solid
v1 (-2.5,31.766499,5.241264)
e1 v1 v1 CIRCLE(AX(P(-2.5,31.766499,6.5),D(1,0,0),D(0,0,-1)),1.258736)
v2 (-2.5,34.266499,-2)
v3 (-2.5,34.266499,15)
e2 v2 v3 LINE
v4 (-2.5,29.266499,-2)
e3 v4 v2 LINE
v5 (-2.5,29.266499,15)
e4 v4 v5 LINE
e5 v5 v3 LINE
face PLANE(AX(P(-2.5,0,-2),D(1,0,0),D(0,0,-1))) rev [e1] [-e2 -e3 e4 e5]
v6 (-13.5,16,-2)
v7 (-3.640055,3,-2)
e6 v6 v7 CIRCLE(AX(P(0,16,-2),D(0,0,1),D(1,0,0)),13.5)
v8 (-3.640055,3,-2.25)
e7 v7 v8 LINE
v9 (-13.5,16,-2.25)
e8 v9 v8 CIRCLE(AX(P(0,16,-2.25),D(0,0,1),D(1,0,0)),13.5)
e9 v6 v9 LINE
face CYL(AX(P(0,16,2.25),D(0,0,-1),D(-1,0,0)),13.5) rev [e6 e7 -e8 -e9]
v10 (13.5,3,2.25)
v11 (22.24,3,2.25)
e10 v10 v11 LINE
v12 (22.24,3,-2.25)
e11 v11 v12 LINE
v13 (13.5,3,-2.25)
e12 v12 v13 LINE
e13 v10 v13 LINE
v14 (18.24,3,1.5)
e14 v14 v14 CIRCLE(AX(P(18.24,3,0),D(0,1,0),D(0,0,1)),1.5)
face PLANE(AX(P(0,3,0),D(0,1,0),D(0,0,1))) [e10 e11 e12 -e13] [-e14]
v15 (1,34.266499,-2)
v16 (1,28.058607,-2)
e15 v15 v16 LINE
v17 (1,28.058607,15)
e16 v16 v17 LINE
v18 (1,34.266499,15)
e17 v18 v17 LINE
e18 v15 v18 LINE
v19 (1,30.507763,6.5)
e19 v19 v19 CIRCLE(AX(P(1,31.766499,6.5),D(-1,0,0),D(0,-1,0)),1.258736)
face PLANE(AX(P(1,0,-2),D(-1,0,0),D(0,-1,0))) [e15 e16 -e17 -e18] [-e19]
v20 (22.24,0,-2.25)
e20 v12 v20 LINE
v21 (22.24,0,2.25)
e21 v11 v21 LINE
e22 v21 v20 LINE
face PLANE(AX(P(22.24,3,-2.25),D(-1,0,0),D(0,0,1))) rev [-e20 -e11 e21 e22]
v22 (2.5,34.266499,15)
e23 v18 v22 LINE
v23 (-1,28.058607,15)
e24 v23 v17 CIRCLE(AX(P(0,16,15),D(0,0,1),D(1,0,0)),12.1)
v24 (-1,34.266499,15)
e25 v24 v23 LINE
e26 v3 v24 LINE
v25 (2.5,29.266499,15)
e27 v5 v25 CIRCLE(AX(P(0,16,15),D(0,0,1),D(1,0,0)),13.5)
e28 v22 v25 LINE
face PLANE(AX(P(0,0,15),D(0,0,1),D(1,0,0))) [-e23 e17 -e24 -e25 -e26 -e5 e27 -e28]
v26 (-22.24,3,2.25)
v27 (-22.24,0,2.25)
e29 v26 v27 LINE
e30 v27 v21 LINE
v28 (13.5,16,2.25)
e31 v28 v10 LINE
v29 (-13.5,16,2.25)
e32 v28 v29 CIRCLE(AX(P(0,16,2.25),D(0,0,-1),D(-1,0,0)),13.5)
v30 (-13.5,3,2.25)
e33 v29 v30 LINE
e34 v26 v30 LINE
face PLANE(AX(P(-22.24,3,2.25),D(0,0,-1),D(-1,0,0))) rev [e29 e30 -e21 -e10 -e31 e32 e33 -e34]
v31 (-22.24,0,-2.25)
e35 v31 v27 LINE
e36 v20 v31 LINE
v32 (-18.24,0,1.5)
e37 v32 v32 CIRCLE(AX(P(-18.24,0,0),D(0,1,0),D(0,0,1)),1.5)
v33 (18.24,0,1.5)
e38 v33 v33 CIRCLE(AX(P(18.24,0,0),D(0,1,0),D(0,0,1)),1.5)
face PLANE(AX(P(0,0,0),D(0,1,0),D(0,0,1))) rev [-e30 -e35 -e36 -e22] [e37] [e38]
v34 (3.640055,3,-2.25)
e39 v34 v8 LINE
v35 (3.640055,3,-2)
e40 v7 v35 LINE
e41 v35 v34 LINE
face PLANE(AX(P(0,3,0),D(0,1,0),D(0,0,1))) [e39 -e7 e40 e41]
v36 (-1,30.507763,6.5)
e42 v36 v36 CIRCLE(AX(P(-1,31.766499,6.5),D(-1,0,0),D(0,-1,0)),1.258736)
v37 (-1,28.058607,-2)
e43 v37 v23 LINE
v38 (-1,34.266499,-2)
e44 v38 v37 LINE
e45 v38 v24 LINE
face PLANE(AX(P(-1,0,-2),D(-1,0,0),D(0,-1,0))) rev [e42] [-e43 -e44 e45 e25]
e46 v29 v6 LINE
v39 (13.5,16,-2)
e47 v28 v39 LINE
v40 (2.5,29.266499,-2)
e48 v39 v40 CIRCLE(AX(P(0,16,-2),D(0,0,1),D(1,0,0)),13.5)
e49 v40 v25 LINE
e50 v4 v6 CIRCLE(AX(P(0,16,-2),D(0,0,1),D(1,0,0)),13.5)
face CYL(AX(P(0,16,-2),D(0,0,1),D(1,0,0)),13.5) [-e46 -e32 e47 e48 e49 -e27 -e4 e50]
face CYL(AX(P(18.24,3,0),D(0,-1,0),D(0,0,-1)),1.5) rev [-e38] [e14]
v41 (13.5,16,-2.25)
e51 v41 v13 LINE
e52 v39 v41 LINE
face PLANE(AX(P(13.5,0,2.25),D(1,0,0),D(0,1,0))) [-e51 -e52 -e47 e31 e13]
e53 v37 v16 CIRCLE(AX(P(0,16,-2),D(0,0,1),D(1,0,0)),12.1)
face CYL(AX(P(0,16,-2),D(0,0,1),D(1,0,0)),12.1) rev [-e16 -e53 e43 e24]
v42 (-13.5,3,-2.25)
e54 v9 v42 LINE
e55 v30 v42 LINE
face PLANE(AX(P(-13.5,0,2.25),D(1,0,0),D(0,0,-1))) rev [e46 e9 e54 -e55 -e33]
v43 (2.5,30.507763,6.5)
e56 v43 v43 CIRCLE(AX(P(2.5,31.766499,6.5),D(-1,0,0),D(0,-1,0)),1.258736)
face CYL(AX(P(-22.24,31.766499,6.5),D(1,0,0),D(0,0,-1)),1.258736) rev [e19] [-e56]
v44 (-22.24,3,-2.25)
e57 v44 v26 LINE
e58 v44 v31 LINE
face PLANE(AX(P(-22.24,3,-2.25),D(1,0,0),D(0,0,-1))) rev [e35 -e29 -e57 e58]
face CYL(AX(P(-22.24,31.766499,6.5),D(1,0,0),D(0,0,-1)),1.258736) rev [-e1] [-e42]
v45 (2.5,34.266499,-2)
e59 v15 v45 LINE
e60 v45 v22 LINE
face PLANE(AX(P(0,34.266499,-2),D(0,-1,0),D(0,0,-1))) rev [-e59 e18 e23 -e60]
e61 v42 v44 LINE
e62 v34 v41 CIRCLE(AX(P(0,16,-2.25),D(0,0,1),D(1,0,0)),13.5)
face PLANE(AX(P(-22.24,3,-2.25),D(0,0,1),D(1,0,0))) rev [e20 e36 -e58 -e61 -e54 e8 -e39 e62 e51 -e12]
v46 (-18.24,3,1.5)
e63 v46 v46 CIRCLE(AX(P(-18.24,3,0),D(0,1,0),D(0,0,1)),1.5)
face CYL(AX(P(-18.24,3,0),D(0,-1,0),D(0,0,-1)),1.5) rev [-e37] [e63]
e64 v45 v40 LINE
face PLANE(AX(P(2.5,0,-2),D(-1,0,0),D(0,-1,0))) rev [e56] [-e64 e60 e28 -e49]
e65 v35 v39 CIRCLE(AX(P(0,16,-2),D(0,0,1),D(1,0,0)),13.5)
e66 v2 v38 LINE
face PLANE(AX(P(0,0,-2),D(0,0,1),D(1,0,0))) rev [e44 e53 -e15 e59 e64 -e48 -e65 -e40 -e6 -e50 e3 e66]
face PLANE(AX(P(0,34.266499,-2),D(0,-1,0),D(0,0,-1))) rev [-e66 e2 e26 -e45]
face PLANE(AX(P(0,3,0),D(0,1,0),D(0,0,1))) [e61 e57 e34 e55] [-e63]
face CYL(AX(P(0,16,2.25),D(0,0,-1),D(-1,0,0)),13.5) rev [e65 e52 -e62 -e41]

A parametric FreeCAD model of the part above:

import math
import FreeCAD as App
import Part
import Sketcher

V = App.Vector
Q = App.Units.Quantity

doc = App.newDocument("Part")
body = doc.addObject("PartDesign::Body", "Body")

sketch1 = body.newObject("Sketcher::SketchObject", "Sketch")
sketch1.AttachmentSupport = (doc.getObject("XZ_Plane"), [""])
sketch1.MapMode = "FlatFace"
sketch1.addGeometry([
    Part.LineSegment(V(-22.2, -2.2, 0), V(-22.2, 2.2, 0)),
    Part.LineSegment(V(-22.2, 2.2, 0), V(22.2, 2.2, 0)),
    Part.LineSegment(V(22.2, 2.2, 0), V(22.2, -2.2, 0)),
    Part.LineSegment(V(22.2, -2.2, 0), V(-22.2, -2.2, 0)),
    Part.Circle(V(-18.2, 0, 0), V(0, 0, 1), 1.5),
    Part.Circle(V(18.2, 0, 0), V(0, 0, 1), 1.5),
], False)
sketch1.addConstraint([
    Sketcher.Constraint("Coincident", 0, 2, 1, 1),
    Sketcher.Constraint("Coincident", 1, 2, 2, 1),
    Sketcher.Constraint("Coincident", 2, 2, 3, 1),
    Sketcher.Constraint("Coincident", 3, 2, 0, 1),
    Sketcher.Constraint("Vertical", 0),
    Sketcher.Constraint("Horizontal", 1),
    Sketcher.Constraint("Vertical", 2),
    Sketcher.Constraint("Horizontal", 3),
    Sketcher.Constraint("Equal", 4, 5),
    Sketcher.Constraint("Symmetric", 4, 3, 5, 3, -1, 1),
    Sketcher.Constraint("Symmetric", 0, 2, 2, 2, -1, 1),
    Sketcher.Constraint("PointOnObject", 4, 3, -1),
    Sketcher.Constraint("Diameter", 4, Q("3 mm")),
    Sketcher.Constraint("DistanceY", 0, 1, 0, 2, Q("4.5 mm")),
    Sketcher.Constraint("DistanceX", 0, 2, 4, 3, Q("4 mm")),
    Sketcher.Constraint("DistanceX", 1, 1, 1, 2, Q("44.48 mm")),
])
pad1 = body.newObject("PartDesign::Pad", "Pad")
pad1.Profile = sketch1
pad1.Length = 3
pad1.Reversed = True

sketch2 = body.newObject("Sketcher::SketchObject", "Sketch001")
sketch2.AttachmentSupport = (doc.getObject("XY_Plane"), [""])
sketch2.MapMode = "FlatFace"
sketch2.addGeometry([
    Part.LineSegment(V(-2.5, 34.3, 0), V(-2.5, 29.3, 0)),
    Part.ArcOfCircle(Part.Circle(V(0, 16, 0), V(0, 0, 1), 13.5), math.radians(101), math.radians(180)),
    Part.ArcOfCircle(Part.Circle(V(0, 16, 0), V(0, 0, 1), 13.5), math.radians(-180), math.radians(-106)),
    Part.ArcOfCircle(Part.Circle(V(0, 16, 0), V(0, 0, 1), 13.5), math.radians(-106), math.radians(-74)),
    Part.ArcOfCircle(Part.Circle(V(0, 16, 0), V(0, 0, 1), 13.5), math.radians(-74), math.radians(0)),
    Part.ArcOfCircle(Part.Circle(V(0, 16, 0), V(0, 0, 1), 13.5), math.radians(0), math.radians(79)),
    Part.LineSegment(V(2.5, 29.3, 0), V(2.5, 34.3, 0)),
    Part.LineSegment(V(2.5, 34.3, 0), V(1, 34.3, 0)),
    Part.LineSegment(V(1, 34.3, 0), V(1, 28.1, 0)),
    Part.ArcOfCircle(Part.Circle(V(0, 16, 0), V(0, 0, 1), 12.1), math.radians(0), math.radians(85)),
    Part.ArcOfCircle(Part.Circle(V(0, 16, 0), V(0, 0, 1), 12.1), math.radians(95), math.radians(360)),
    Part.LineSegment(V(-1, 28.1, 0), V(-1, 34.3, 0)),
    Part.LineSegment(V(-1, 34.3, 0), V(-2.5, 34.3, 0)),
], False)
sketch2.addConstraint([
    Sketcher.Constraint("Coincident", 0, 2, 1, 1),
    Sketcher.Constraint("Tangent", 1, 2, 2, 1),
    Sketcher.Constraint("Tangent", 2, 2, 3, 1),
    Sketcher.Constraint("Tangent", 3, 2, 4, 1),
    Sketcher.Constraint("Tangent", 4, 2, 5, 1),
    Sketcher.Constraint("Coincident", 5, 2, 6, 1),
    Sketcher.Constraint("Coincident", 6, 2, 7, 1),
    Sketcher.Constraint("Coincident", 7, 2, 8, 1),
    Sketcher.Constraint("Coincident", 8, 2, 9, 2),
    Sketcher.Constraint("Tangent", 9, 1, 10, 2),
    Sketcher.Constraint("Coincident", 10, 1, 11, 1),
    Sketcher.Constraint("Coincident", 11, 2, 12, 1),
    Sketcher.Constraint("Coincident", 12, 2, 0, 1),
    Sketcher.Constraint("Vertical", 0),
    Sketcher.Constraint("Vertical", 6),
    Sketcher.Constraint("Horizontal", 7),
    Sketcher.Constraint("Vertical", 8),
    Sketcher.Constraint("Vertical", 11),
    Sketcher.Constraint("Horizontal", 12),
    Sketcher.Constraint("Coincident", 3, 3, 1, 3),
    Sketcher.Constraint("Coincident", 5, 3, 1, 3),
    Sketcher.Constraint("Coincident", 9, 3, 1, 3),
    Sketcher.Constraint("Equal", 9, 10),
    Sketcher.Constraint("Symmetric", 2, 2, 3, 2, -2),
    Sketcher.Constraint("Symmetric", 7, 2, 11, 2, -2),
    Sketcher.Constraint("Horizontal", 10, 3, 1, 2),
    Sketcher.Constraint("Horizontal", 1, 2, 4, 2),
    Sketcher.Constraint("Horizontal", 0, 2, 5, 2),
    Sketcher.Constraint("Horizontal", 4, 2, 9, 1),
    Sketcher.Constraint("Radius", 1, Q("13.5 mm")),
    Sketcher.Constraint("Radius", 9, Q("12.1 mm")),
    Sketcher.Constraint("DistanceY", 0, 2, 0, 1, Q("5 mm")),
    Sketcher.Constraint("DistanceX", 7, 2, 7, 1, Q("1.5 mm")),
    Sketcher.Constraint("DistanceY", -1, 1, 1, 3, Q("16 mm")),
    Sketcher.Constraint("DistanceY", -1, 1, 2, 2, Q("3 mm")),
    Sketcher.Constraint("DistanceX", -1, 1, 7, 2, Q("1 mm")),
])
pad2 = body.newObject("PartDesign::Pad", "Pad001")
pad2.Profile = sketch2
pad2.Type = "TwoLengths"
pad2.Length = 15
pad2.Length2 = 2

sketch3 = body.newObject("Sketcher::SketchObject", "Sketch002")
sketch3.AttachmentSupport = (doc.getObject("XY_Plane"), [""])
sketch3.MapMode = "FlatFace"
sketch3.addGeometry([
    Part.ArcOfCircle(Part.Circle(V(0, 16, 0), V(0, 0, 1), 14), math.radians(-74), math.radians(0)),
    Part.LineSegment(V(4, 3, 0), V(14, 3, 0)),
    Part.LineSegment(V(14, 3, 0), V(14, 16, 0)),
    Part.ArcOfCircle(Part.Circle(V(0, 16, 0), V(0, 0, 1), 14), math.radians(-180), math.radians(-106)),
    Part.LineSegment(V(-14, 16, 0), V(-14, 3, 0)),
    Part.LineSegment(V(-14, 3, 0), V(-4, 3, 0)),
], False)
sketch3.addConstraint([
    Sketcher.Constraint("Coincident", 0, 1, 1, 1),
    Sketcher.Constraint("Coincident", 1, 2, 2, 1),
    Sketcher.Constraint("Tangent", 2, 2, 0, 2),
    Sketcher.Constraint("Tangent", 3, 1, 4, 1),
    Sketcher.Constraint("Coincident", 4, 2, 5, 1),
    Sketcher.Constraint("Coincident", 5, 2, 3, 2),
    Sketcher.Constraint("Horizontal", 1),
    Sketcher.Constraint("Vertical", 2),
    Sketcher.Constraint("Vertical", 4),
    Sketcher.Constraint("Horizontal", 5),
    Sketcher.Constraint("Coincident", 3, 3, 0, 3),
    Sketcher.Constraint("Equal", 0, 3),
    Sketcher.Constraint("Symmetric", 1, 2, 4, 2, -2),
    Sketcher.Constraint("Radius", 0, Q("13.5 mm")),
    Sketcher.Constraint("DistanceY", 2, 1, 2, 2, Q("13 mm")),
    Sketcher.Constraint("DistanceY", -1, 1, 0, 3, Q("16 mm")),
])
pad3 = body.newObject("PartDesign::Pad", "Pad002")
pad3.Profile = sketch3
pad3.Length = 4.5
pad3.Midplane = True

sketch4 = body.newObject("Sketcher::SketchObject", "Sketch003")
sketch4.AttachmentSupport = (doc.getObject("YZ_Plane"), [""])
sketch4.MapMode = "FlatFace"
sketch4.addGeometry(Part.Circle(V(31.8, 6.5, 0), V(0, 0, 1), 1.3), False)
sketch4.addConstraint([
    Sketcher.Constraint("DistanceY", -1, 1, 0, 3, Q("6.5 mm")),
    Sketcher.Constraint("Diameter", 0, Q("2.517472 mm")),
    Sketcher.Constraint("DistanceX", -1, 1, 0, 3, Q("31.766499 mm")),
])
pocket1 = body.newObject("PartDesign::Pocket", "Pocket")
pocket1.Profile = sketch4
pocket1.Type = "ThroughAll"
pocket1.Midplane = True

doc.recompute()
